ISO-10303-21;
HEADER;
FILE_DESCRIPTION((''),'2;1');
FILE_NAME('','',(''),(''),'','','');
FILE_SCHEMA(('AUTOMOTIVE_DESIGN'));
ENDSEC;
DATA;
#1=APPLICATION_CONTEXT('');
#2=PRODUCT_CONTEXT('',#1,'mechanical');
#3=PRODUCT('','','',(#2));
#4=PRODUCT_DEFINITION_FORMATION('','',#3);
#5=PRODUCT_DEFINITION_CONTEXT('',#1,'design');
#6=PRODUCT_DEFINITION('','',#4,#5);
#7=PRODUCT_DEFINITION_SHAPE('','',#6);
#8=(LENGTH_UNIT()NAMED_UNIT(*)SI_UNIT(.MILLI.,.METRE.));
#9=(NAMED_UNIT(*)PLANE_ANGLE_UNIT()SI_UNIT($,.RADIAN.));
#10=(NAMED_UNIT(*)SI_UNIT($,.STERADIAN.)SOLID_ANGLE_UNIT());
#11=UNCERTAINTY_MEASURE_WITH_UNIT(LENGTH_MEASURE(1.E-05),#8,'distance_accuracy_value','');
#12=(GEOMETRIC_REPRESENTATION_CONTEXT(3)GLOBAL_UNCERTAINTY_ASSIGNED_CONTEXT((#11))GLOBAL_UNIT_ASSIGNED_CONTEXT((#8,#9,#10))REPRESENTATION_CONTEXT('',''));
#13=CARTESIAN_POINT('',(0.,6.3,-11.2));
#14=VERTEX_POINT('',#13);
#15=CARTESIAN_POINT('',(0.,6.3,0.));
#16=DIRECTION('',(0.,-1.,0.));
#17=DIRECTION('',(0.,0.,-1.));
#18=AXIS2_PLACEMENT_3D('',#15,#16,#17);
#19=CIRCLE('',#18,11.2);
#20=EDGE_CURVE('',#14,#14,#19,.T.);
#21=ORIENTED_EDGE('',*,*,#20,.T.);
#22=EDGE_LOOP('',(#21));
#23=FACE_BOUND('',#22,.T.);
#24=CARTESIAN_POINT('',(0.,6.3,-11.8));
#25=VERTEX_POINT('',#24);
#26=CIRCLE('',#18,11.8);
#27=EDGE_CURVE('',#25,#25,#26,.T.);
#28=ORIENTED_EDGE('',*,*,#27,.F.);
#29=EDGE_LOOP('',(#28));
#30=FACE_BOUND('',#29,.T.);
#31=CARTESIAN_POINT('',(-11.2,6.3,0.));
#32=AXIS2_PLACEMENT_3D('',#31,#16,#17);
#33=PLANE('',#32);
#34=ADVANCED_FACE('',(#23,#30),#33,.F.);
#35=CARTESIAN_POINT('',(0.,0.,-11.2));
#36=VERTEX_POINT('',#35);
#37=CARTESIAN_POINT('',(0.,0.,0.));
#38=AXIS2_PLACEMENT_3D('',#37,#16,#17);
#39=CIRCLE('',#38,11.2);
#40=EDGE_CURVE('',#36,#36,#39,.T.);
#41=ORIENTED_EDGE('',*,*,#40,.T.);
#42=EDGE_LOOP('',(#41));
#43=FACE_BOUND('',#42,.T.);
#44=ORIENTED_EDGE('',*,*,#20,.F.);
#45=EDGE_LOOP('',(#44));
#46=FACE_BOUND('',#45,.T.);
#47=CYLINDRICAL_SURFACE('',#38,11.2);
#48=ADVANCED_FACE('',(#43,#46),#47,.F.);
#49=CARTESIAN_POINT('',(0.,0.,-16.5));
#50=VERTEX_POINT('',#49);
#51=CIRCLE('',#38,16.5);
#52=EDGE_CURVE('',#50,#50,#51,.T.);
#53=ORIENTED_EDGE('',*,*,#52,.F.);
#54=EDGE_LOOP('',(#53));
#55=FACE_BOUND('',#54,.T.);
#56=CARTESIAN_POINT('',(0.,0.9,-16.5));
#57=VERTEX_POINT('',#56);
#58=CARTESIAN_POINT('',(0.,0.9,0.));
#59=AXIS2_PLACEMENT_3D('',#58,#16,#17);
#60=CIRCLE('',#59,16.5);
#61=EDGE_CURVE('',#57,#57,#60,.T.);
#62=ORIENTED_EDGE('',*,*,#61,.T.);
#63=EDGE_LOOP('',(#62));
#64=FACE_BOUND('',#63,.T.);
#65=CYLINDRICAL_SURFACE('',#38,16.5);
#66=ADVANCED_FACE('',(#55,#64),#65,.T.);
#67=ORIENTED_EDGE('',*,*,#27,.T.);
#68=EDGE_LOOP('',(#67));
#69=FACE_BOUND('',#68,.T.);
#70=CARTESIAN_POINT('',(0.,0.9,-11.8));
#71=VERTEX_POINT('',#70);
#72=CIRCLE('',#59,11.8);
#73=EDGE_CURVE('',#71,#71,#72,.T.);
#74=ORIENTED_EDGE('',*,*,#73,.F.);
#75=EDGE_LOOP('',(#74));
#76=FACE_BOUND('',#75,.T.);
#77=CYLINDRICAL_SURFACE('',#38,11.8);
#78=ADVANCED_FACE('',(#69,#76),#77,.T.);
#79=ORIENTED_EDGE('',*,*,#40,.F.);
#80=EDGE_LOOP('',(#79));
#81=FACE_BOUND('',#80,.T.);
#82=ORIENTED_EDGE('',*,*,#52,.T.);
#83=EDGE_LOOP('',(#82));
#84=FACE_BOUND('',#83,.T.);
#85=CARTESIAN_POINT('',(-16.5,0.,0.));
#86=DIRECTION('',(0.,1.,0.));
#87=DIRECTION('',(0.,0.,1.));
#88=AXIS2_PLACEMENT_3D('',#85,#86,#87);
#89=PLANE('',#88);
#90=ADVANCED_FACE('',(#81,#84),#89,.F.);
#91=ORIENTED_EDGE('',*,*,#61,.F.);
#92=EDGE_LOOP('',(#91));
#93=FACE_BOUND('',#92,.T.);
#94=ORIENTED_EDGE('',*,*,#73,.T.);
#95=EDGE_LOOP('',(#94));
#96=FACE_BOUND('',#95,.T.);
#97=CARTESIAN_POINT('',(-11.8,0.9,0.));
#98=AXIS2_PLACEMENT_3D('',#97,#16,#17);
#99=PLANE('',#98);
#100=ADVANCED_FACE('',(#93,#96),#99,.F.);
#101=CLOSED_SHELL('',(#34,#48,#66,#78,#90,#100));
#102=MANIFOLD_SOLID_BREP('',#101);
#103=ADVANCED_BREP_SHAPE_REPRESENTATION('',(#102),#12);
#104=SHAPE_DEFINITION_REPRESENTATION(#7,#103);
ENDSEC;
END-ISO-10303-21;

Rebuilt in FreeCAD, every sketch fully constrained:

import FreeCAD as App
import Part
import Sketcher
Q = App.Units.Quantity

doc = App.newDocument("Part")
body = doc.addObject("PartDesign::Body", "Body")

# Sketch on XY plane
sketch1 = doc.addObject("Sketcher::SketchObject", "Sketch")
body.addObject(sketch1)
sketch1.AttachmentSupport = (doc.XY_Plane, [""])
sketch1.MapMode = "FlatFace"
sketch1.addGeometry([
    Part.LineSegment(App.Vector(-16.5, 0, 0), App.Vector(-11.2, 0, 0)),  # 0
    Part.LineSegment(App.Vector(-11.2, 0, 0), App.Vector(-11.2, 6.3, 0)),  # 1
    Part.LineSegment(App.Vector(-11.2, 6.3, 0), App.Vector(-11.8, 6.3, 0)),  # 2
    Part.LineSegment(App.Vector(-11.8, 6.3, 0), App.Vector(-11.8, 0.9, 0)),  # 3
    Part.LineSegment(App.Vector(-11.8, 0.9, 0), App.Vector(-16.5, 0.9, 0)),  # 4
    Part.LineSegment(App.Vector(-16.5, 0.9, 0), App.Vector(-16.5, 0, 0)),  # 5
], False)
sketch1.addConstraint([
    Sketcher.Constraint("Coincident", 0, 2, 1, 1),
    Sketcher.Constraint("Coincident", 1, 2, 2, 1),
    Sketcher.Constraint("Coincident", 2, 2, 3, 1),
    Sketcher.Constraint("Coincident", 3, 2, 4, 1),
    Sketcher.Constraint("Coincident", 4, 2, 5, 1),
    Sketcher.Constraint("Coincident", 5, 2, 0, 1),
    Sketcher.Constraint("Horizontal", 0),
    Sketcher.Constraint("Vertical", 1),
    Sketcher.Constraint("Horizontal", 2),
    Sketcher.Constraint("Vertical", 3),
    Sketcher.Constraint("Horizontal", 4),
    Sketcher.Constraint("Vertical", 5),
    Sketcher.Constraint("PointOnObject", 0, 2, -1),
    Sketcher.Constraint("DistanceX", 0, 1, 0, 2, Q("5.3 mm")),
    Sketcher.Constraint("DistanceX", 2, 2, 2, 1, Q("0.6 mm")),
    Sketcher.Constraint("DistanceY", 1, 1, 1, 2, Q("6.3 mm")),
    Sketcher.Constraint("DistanceY", 3, 2, 3, 1, Q("5.4 mm")),
    Sketcher.Constraint("DistanceX", 0, 2, -1, 1, Q("11.2 mm")),
])
revolution = doc.addObject("PartDesign::Revolution", "Revolution")
body.addObject(revolution)
revolution.Profile = sketch1
revolution.ReferenceAxis = (sketch1, ["V_Axis"])
revolution.Angle = 360

doc.recompute()
